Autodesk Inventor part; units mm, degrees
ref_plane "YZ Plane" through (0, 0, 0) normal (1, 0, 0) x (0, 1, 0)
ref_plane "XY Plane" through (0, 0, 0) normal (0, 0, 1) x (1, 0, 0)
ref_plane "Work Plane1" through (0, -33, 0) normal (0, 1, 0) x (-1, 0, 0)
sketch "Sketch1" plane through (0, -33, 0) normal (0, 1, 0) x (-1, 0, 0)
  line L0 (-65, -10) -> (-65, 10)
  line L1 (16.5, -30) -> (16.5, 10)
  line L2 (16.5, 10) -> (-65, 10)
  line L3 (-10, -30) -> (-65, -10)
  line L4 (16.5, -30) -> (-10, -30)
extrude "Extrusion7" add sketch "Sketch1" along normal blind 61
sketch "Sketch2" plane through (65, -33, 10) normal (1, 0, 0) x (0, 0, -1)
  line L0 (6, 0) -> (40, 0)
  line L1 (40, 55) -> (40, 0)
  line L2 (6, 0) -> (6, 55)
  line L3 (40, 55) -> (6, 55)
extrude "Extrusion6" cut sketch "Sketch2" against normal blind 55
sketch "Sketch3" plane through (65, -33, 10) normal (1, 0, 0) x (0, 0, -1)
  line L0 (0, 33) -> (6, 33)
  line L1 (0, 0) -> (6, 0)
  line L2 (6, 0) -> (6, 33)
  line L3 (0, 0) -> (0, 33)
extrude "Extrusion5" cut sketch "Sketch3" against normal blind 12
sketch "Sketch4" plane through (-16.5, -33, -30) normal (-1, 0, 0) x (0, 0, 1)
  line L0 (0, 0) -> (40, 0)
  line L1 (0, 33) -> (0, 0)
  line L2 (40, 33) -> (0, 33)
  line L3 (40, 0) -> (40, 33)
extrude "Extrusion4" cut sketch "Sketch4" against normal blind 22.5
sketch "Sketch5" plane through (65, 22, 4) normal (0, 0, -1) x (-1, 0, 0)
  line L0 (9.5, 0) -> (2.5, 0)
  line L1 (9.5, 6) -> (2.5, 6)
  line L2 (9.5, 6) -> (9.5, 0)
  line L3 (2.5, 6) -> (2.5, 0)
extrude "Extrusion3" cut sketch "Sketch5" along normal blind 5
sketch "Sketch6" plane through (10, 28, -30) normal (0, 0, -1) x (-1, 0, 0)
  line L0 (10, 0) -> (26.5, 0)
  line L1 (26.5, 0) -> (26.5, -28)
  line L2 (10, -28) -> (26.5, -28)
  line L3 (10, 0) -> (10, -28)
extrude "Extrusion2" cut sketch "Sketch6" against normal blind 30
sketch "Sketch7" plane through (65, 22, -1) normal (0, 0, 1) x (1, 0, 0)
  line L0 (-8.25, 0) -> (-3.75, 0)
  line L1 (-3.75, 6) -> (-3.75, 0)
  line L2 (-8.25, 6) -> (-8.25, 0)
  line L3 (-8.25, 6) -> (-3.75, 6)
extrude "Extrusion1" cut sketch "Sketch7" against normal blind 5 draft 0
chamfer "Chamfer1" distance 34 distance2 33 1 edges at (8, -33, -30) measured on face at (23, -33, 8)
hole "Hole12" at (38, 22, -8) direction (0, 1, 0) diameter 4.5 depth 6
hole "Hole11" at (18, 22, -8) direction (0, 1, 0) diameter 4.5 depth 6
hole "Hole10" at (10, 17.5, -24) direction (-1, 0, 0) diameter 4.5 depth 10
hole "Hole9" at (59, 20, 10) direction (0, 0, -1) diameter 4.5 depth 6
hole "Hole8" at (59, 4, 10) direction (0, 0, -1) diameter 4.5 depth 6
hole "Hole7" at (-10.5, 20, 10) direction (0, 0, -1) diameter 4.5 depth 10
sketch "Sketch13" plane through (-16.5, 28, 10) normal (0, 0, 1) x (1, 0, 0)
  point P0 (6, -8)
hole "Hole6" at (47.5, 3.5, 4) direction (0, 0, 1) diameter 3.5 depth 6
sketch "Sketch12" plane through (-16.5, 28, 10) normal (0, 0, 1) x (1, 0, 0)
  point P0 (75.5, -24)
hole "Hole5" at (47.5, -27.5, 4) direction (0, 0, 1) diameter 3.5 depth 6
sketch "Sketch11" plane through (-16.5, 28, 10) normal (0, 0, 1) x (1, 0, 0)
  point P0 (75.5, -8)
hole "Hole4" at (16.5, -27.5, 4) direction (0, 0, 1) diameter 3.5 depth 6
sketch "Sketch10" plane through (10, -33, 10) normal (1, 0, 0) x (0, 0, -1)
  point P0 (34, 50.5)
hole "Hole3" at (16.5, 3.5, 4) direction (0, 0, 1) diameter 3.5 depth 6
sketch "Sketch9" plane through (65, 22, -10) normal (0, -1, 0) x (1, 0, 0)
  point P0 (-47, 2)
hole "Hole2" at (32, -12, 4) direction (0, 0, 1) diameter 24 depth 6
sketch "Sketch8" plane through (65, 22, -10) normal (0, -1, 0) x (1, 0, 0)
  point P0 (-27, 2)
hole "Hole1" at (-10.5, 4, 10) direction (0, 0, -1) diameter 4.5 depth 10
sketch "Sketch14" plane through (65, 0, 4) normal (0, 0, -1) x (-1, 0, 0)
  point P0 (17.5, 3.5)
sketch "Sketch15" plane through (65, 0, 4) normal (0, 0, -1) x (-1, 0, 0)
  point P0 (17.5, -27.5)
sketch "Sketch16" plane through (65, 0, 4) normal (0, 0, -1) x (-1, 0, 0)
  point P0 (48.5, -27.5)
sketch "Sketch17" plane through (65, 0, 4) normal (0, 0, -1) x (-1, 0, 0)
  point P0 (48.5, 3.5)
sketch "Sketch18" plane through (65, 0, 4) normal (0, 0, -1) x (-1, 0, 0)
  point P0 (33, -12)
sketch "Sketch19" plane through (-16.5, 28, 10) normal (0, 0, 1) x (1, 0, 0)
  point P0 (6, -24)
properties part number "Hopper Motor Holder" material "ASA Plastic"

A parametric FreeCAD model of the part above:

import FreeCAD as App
import Part
import Sketcher

V = App.Vector
Q = App.Units.Quantity


def edges_at(feature, points):
    """Names of the edges that pass closest to the given points."""
    edges = feature.Shape.Edges
    near = lambda p: min(range(len(edges)), key=lambda i: edges[i].distToShape(Part.Vertex(*p))[0])
    return sorted({f"Edge{near(p) + 1}" for p in points})

doc = App.newDocument("Part")
body = doc.addObject("PartDesign::Body", "Body")

# Sketch on XZ plane
sketch1 = body.newObject("Sketcher::SketchObject", "Sketch")
sketch1.AttachmentSupport = (doc.getObject("XZ_Plane"), [""])
sketch1.MapMode = "FlatFace"
sketch1.AttachmentOffset = App.Placement(V(0, 0, 33), App.Rotation())
sketch1.addGeometry([
    Part.LineSegment(V(65, 10, 0), V(65, -10, 0)),  # 0
    Part.LineSegment(V(65, -10, 0), V(10, -30, 0)),  # 1
    Part.LineSegment(V(10, -30, 0), V(-16.5, -30, 0)),  # 2
    Part.LineSegment(V(-16.5, -30, 0), V(-16.5, 10, 0)),  # 3
    Part.LineSegment(V(-16.5, 10, 0), V(65, 10, 0)),  # 4
], False)
sketch1.addConstraint([
    Sketcher.Constraint("Coincident", 0, 2, 1, 1),
    Sketcher.Constraint("Coincident", 1, 2, 2, 1),
    Sketcher.Constraint("Coincident", 2, 2, 3, 1),
    Sketcher.Constraint("Coincident", 3, 2, 4, 1),
    Sketcher.Constraint("Coincident", 4, 2, 0, 1),
    Sketcher.Constraint("Vertical", 0),
    Sketcher.Constraint("Horizontal", 2),
    Sketcher.Constraint("Vertical", 3),
    Sketcher.Constraint("Horizontal", 4),
    Sketcher.Constraint("DistanceY", 0, 2, 0, 1, Q("20 mm")),
    Sketcher.Constraint("DistanceY", 3, 1, 3, 2, Q("40 mm")),
    Sketcher.Constraint("DistanceX", 2, 2, 2, 1, Q("26.5 mm")),
    Sketcher.Constraint("DistanceX", 4, 1, 4, 2, Q("81.5 mm")),
    Sketcher.Constraint("DistanceX", -1, 1, 0, 2, Q("65 mm")),
    Sketcher.Constraint("DistanceY", 0, 2, -1, 1, Q("10 mm")),
])
pad1 = body.newObject("PartDesign::Pad", "Pad")
pad1.Profile = sketch1
pad1.Length = 61
pad1.Reversed = True

# Sketch on YZ plane
sketch2 = body.newObject("Sketcher::SketchObject", "Sketch001")
sketch2.AttachmentSupport = (doc.getObject("YZ_Plane"), [""])
sketch2.MapMode = "FlatFace"
sketch2.AttachmentOffset = App.Placement(V(0, 0, 65), App.Rotation())
sketch2.addGeometry([
    Part.LineSegment(V(22, 4, 0), V(-33, 4, 0)),
    Part.LineSegment(V(-33, 4, 0), V(-33, -30, 0)),
    Part.LineSegment(V(-33, -30, 0), V(22, -30, 0)),
    Part.LineSegment(V(22, -30, 0), V(22, 4, 0)),
], False)
sketch2.addConstraint([
    Sketcher.Constraint("Coincident", 0, 2, 1, 1),
    Sketcher.Constraint("Coincident", 1, 2, 2, 1),
    Sketcher.Constraint("Coincident", 2, 2, 3, 1),
    Sketcher.Constraint("Coincident", 3, 2, 0, 1),
    Sketcher.Constraint("Horizontal", 0),
    Sketcher.Constraint("Vertical", 1),
    Sketcher.Constraint("Horizontal", 2),
    Sketcher.Constraint("Vertical", 3),
    Sketcher.Constraint("DistanceX", 0, 2, 0, 1, Q("55 mm")),
    Sketcher.Constraint("DistanceY", 1, 2, 1, 1, Q("34 mm")),
    Sketcher.Constraint("DistanceX", 0, 2, -1, 1, Q("33 mm")),
    Sketcher.Constraint("DistanceY", -1, 1, 0, 2, Q("4 mm")),
])
pocket1 = body.newObject("PartDesign::Pocket", "Pocket")
pocket1.Profile = sketch2
pocket1.Length = 55

# Sketch on YZ plane
sketch3 = body.newObject("Sketcher::SketchObject", "Sketch002")
sketch3.AttachmentSupport = (doc.getObject("YZ_Plane"), [""])
sketch3.MapMode = "FlatFace"
sketch3.AttachmentOffset = App.Placement(V(0, 0, 65), App.Rotation())
sketch3.addGeometry([
    Part.LineSegment(V(0, 4, 0), V(0, 10, 0)),
    Part.LineSegment(V(0, 10, 0), V(-33, 10, 0)),
    Part.LineSegment(V(-33, 10, 0), V(-33, 4, 0)),
    Part.LineSegment(V(-33, 4, 0), V(0, 4, 0)),
], False)
sketch3.addConstraint([
    Sketcher.Constraint("Coincident", 0, 2, 1, 1),
    Sketcher.Constraint("Coincident", 1, 2, 2, 1),
    Sketcher.Constraint("Coincident", 2, 2, 3, 1),
    Sketcher.Constraint("Coincident", 3, 2, 0, 1),
    Sketcher.Constraint("Vertical", 0),
    Sketcher.Constraint("Horizontal", 1),
    Sketcher.Constraint("Vertical", 2),
    Sketcher.Constraint("Horizontal", 3),
    Sketcher.Constraint("PointOnObject", 0, 2, -2),
    Sketcher.Constraint("DistanceX", 1, 2, 1, 1, Q("33 mm")),
    Sketcher.Constraint("DistanceY", 0, 1, 0, 2, Q("6 mm")),
    Sketcher.Constraint("DistanceY", -1, 1, 0, 2, Q("10 mm")),
])
pocket2 = body.newObject("PartDesign::Pocket", "Pocket001")
pocket2.Profile = sketch3
pocket2.Length = 12

# Sketch on YZ plane
sketch4 = body.newObject("Sketcher::SketchObject", "Sketch003")
sketch4.AttachmentSupport = (doc.getObject("YZ_Plane"), [""])
sketch4.MapMode = "FlatFace"
sketch4.AttachmentOffset = App.Placement(V(0, 0, -16.5), App.Rotation())
sketch4.addGeometry([
    Part.LineSegment(V(0, -30, 0), V(-33, -30, 0)),
    Part.LineSegment(V(-33, -30, 0), V(-33, 10, 0)),
    Part.LineSegment(V(-33, 10, 0), V(0, 10, 0)),
    Part.LineSegment(V(0, 10, 0), V(0, -30, 0)),
], False)
sketch4.addConstraint([
    Sketcher.Constraint("Coincident", 0, 2, 1, 1),
    Sketcher.Constraint("Coincident", 1, 2, 2, 1),
    Sketcher.Constraint("Coincident", 2, 2, 3, 1),
    Sketcher.Constraint("Coincident", 3, 2, 0, 1),
    Sketcher.Constraint("Horizontal", 0),
    Sketcher.Constraint("Vertical", 1),
    Sketcher.Constraint("Horizontal", 2),
    Sketcher.Constraint("Vertical", 3),
    Sketcher.Constraint("PointOnObject", 2, 2, -2),
    Sketcher.Constraint("DistanceX", 0, 2, 0, 1, Q("33 mm")),
    Sketcher.Constraint("DistanceY", 1, 1, 1, 2, Q("40 mm")),
    Sketcher.Constraint("DistanceY", 0, 2, -1, 1, Q("30 mm")),
])
pocket3 = body.newObject("PartDesign::Pocket", "Pocket002")
pocket3.Profile = sketch4
pocket3.Length = 22.5
pocket3.Reversed = True

# Sketch on XY plane
sketch5 = body.newObject("Sketcher::SketchObject", "Sketch004")
sketch5.AttachmentSupport = (doc.getObject("XY_Plane"), [""])
sketch5.MapMode = "FlatFace"
sketch5.AttachmentOffset = App.Placement(V(0, 0, 4), App.Rotation())
sketch5.addGeometry([
    Part.LineSegment(V(62.5, 22, 0), V(55.5, 22, 0)),
    Part.LineSegment(V(55.5, 22, 0), V(55.5, 28, 0)),
    Part.LineSegment(V(55.5, 28, 0), V(62.5, 28, 0)),
    Part.LineSegment(V(62.5, 28, 0), V(62.5, 22, 0)),
], False)
sketch5.addConstraint([
    Sketcher.Constraint("Coincident", 0, 2, 1, 1),
    Sketcher.Constraint("Coincident", 1, 2, 2, 1),
    Sketcher.Constraint("Coincident", 2, 2, 3, 1),
    Sketcher.Constraint("Coincident", 3, 2, 0, 1),
    Sketcher.Constraint("Horizontal", 0),
    Sketcher.Constraint("Vertical", 1),
    Sketcher.Constraint("Horizontal", 2),
    Sketcher.Constraint("Vertical", 3),
    Sketcher.Constraint("DistanceX", 0, 2, 0, 1, Q("7 mm")),
    Sketcher.Constraint("DistanceY", 1, 1, 1, 2, Q("6 mm")),
    Sketcher.Constraint("DistanceY", -1, 1, 0, 2, Q("22 mm")),
    Sketcher.Constraint("DistanceX", -1, 1, 0, 2, Q("55.5 mm")),
])
pocket4 = body.newObject("PartDesign::Pocket", "Pocket003")
pocket4.Profile = sketch5
pocket4.Length = 5

# Sketch on XY plane
sketch6 = body.newObject("Sketcher::SketchObject", "Sketch005")
sketch6.AttachmentSupport = (doc.getObject("XY_Plane"), [""])
sketch6.MapMode = "FlatFace"
sketch6.AttachmentOffset = App.Placement(V(0, 0, -30), App.Rotation())
sketch6.addGeometry([
    Part.LineSegment(V(-16.5, 28, 0), V(0, 28, 0)),
    Part.LineSegment(V(0, 28, 0), V(0, 0, 0)),
    Part.LineSegment(V(0, 0, 0), V(-16.5, 0, 0)),
    Part.LineSegment(V(-16.5, 0, 0), V(-16.5, 28, 0)),
], False)
sketch6.addConstraint([
    Sketcher.Constraint("Coincident", 0, 2, 1, 1),
    Sketcher.Constraint("Coincident", 1, 2, 2, 1),
    Sketcher.Constraint("Coincident", 2, 2, 3, 1),
    Sketcher.Constraint("Coincident", 3, 2, 0, 1),
    Sketcher.Constraint("Horizontal", 0),
    Sketcher.Constraint("Vertical", 1),
    Sketcher.Constraint("Horizontal", 2),
    Sketcher.Constraint("Vertical", 3),
    Sketcher.Constraint("Coincident", 1, 2, -1, 1),
    Sketcher.Constraint("DistanceY", 1, 2, 1, 1, Q("28 mm")),
    Sketcher.Constraint("DistanceX", 0, 1, 0, 2, Q("16.5 mm")),
])
pocket5 = body.newObject("PartDesign::Pocket", "Pocket004")
pocket5.Profile = sketch6
pocket5.Length = 30
pocket5.Reversed = True

# Sketch on XY plane
sketch7 = body.newObject("Sketcher::SketchObject", "Sketch006")
sketch7.AttachmentSupport = (doc.getObject("XY_Plane"), [""])
sketch7.MapMode = "FlatFace"
sketch7.AttachmentOffset = App.Placement(V(0, 0, -1), App.Rotation())
sketch7.addGeometry([
    Part.LineSegment(V(56.75, 28, 0), V(56.75, 22, 0)),
    Part.LineSegment(V(56.75, 22, 0), V(61.25, 22, 0)),
    Part.LineSegment(V(61.25, 22, 0), V(61.25, 28, 0)),
    Part.LineSegment(V(61.25, 28, 0), V(56.75, 28, 0)),
], False)
sketch7.addConstraint([
    Sketcher.Constraint("Coincident", 0, 2, 1, 1),
    Sketcher.Constraint("Coincident", 1, 2, 2, 1),
    Sketcher.Constraint("Coincident", 2, 2, 3, 1),
    Sketcher.Constraint("Coincident", 3, 2, 0, 1),
    Sketcher.Constraint("Vertical", 0),
    Sketcher.Constraint("Horizontal", 1),
    Sketcher.Constraint("Vertical", 2),
    Sketcher.Constraint("Horizontal", 3),
    Sketcher.Constraint("DistanceY", 0, 2, 0, 1, Q("6 mm")),
    Sketcher.Constraint("DistanceX", 1, 1, 1, 2, Q("4.5 mm")),
    Sketcher.Constraint("DistanceY", -1, 1, 0, 2, Q("22 mm")),
    Sketcher.Constraint("DistanceX", -1, 1, 0, 2, Q("56.75 mm")),
])
pocket6 = body.newObject("PartDesign::Pocket", "Pocket005")
pocket6.Profile = sketch7
pocket6.Length = 5
doc.recompute()

chamfer = body.newObject("PartDesign::Chamfer", "Chamfer")
chamfer.Base = (pocket6, edges_at(pocket6, [(8, -33, -30)]))
chamfer.ChamferType = "Two distances"
chamfer.Size = 34
chamfer.Size2 = 33

# Sketch on XZ plane
sketch8 = body.newObject("Sketcher::SketchObject", "Sketch007")
sketch8.AttachmentSupport = (doc.getObject("XZ_Plane"), [""])
sketch8.MapMode = "FlatFace"
sketch8.AttachmentOffset = App.Placement(V(0, 0, -22), App.Rotation())
sketch8.addGeometry(Part.Circle(V(38, -8, 0), V(0, 0, 1), 2.25), False)
sketch8.addConstraint([
    Sketcher.Constraint("Diameter", 0, Q("4.5 mm")),
    Sketcher.Constraint("DistanceX", -1, 1, 0, 3, Q("38 mm")),
    Sketcher.Constraint("DistanceY", 0, 3, -1, 1, Q("8 mm")),
])
doc.recompute()
hole = body.newObject("PartDesign::Hole", "Hole")
hole.Profile = sketch8
hole.ThreadType = "None"
hole.Diameter = 4.5
hole.DepthType = "Dimension"
hole.Depth = 6
hole.DrillPoint = "Flat"

# Sketch on XZ plane
sketch9 = body.newObject("Sketcher::SketchObject", "Sketch008")
sketch9.AttachmentSupport = (doc.getObject("XZ_Plane"), [""])
sketch9.MapMode = "FlatFace"
sketch9.AttachmentOffset = App.Placement(V(0, 0, -22), App.Rotation())
sketch9.addGeometry(Part.Circle(V(18, -8, 0), V(0, 0, 1), 2.25), False)
sketch9.addConstraint([
    Sketcher.Constraint("Diameter", 0, Q("4.5 mm")),
    Sketcher.Constraint("DistanceX", -1, 1, 0, 3, Q("18 mm")),
    Sketcher.Constraint("DistanceY", 0, 3, -1, 1, Q("8 mm")),
])
doc.recompute()
hole2 = body.newObject("PartDesign::Hole", "Hole001")
hole2.Profile = sketch9
hole2.ThreadType = "None"
hole2.Diameter = 4.5
hole2.DepthType = "Dimension"
hole2.Depth = 6
hole2.DrillPoint = "Flat"

# Sketch on YZ plane
sketch10 = body.newObject("Sketcher::SketchObject", "Sketch009")
sketch10.AttachmentSupport = (doc.getObject("YZ_Plane"), [""])
sketch10.MapMode = "FlatFace"
sketch10.AttachmentOffset = App.Placement(V(0, 0, 10), App.Rotation())
sketch10.addGeometry(Part.Circle(V(17.5, -24, 0), V(0, 0, 1), 2.25), False)
sketch10.addConstraint([
    Sketcher.Constraint("Diameter", 0, Q("4.5 mm")),
    Sketcher.Constraint("DistanceY", 0, 3, -1, 1, Q("24 mm")),
    Sketcher.Constraint("DistanceX", -1, 1, 0, 3, Q("17.5 mm")),
])
doc.recompute()
hole3 = body.newObject("PartDesign::Hole", "Hole002")
hole3.Profile = sketch10
hole3.ThreadType = "None"
hole3.Diameter = 4.5
hole3.DepthType = "Dimension"
hole3.Depth = 10
hole3.DrillPoint = "Flat"

# Sketch on XY plane
sketch11 = body.newObject("Sketcher::SketchObject", "Sketch010")
sketch11.AttachmentSupport = (doc.getObject("XY_Plane"), [""])
sketch11.MapMode = "FlatFace"
sketch11.AttachmentOffset = App.Placement(V(0, 0, 10), App.Rotation())
sketch11.addGeometry(Part.Circle(V(59, 20, 0), V(0, 0, 1), 2.25), False)
sketch11.addConstraint([
    Sketcher.Constraint("Diameter", 0, Q("4.5 mm")),
    Sketcher.Constraint("DistanceX", -1, 1, 0, 3, Q("59 mm")),
    Sketcher.Constraint("DistanceY", -1, 1, 0, 3, Q("20 mm")),
])
doc.recompute()
hole4 = body.newObject("PartDesign::Hole", "Hole003")
hole4.Profile = sketch11
hole4.ThreadType = "None"
hole4.Diameter = 4.5
hole4.DepthType = "Dimension"
hole4.Depth = 6
hole4.DrillPoint = "Flat"

# Sketch on XY plane
sketch12 = body.newObject("Sketcher::SketchObject", "Sketch011")
sketch12.AttachmentSupport = (doc.getObject("XY_Plane"), [""])
sketch12.MapMode = "FlatFace"
sketch12.AttachmentOffset = App.Placement(V(0, 0, 10), App.Rotation())
sketch12.addGeometry(Part.Circle(V(59, 4, 0), V(0, 0, 1), 2.25), False)
sketch12.addConstraint([
    Sketcher.Constraint("Diameter", 0, Q("4.5 mm")),
    Sketcher.Constraint("DistanceX", -1, 1, 0, 3, Q("59 mm")),
    Sketcher.Constraint("DistanceY", -1, 1, 0, 3, Q("4 mm")),
])
doc.recompute()
hole5 = body.newObject("PartDesign::Hole", "Hole004")
hole5.Profile = sketch12
hole5.ThreadType = "None"
hole5.Diameter = 4.5
hole5.DepthType = "Dimension"
hole5.Depth = 6
hole5.DrillPoint = "Flat"

# Sketch on XY plane
sketch13 = body.newObject("Sketcher::SketchObject", "Sketch012")
sketch13.AttachmentSupport = (doc.getObject("XY_Plane"), [""])
sketch13.MapMode = "FlatFace"
sketch13.AttachmentOffset = App.Placement(V(0, 0, 10), App.Rotation())
sketch13.addGeometry(Part.Circle(V(-10.5, 20, 0), V(0, 0, 1), 2.25), False)
sketch13.addConstraint([
    Sketcher.Constraint("Diameter", 0, Q("4.5 mm")),
    Sketcher.Constraint("DistanceY", -1, 1, 0, 3, Q("20 mm")),
    Sketcher.Constraint("DistanceX", 0, 3, -1, 1, Q("10.5 mm")),
])
doc.recompute()
hole6 = body.newObject("PartDesign::Hole", "Hole005")
hole6.Profile = sketch13
hole6.ThreadType = "None"
hole6.Diameter = 4.5
hole6.DepthType = "Dimension"
hole6.Depth = 10
hole6.DrillPoint = "Flat"

# Sketch on XY plane
sketch14 = body.newObject("Sketcher::SketchObject", "Sketch013")
sketch14.AttachmentSupport = (doc.getObject("XY_Plane"), [""])
sketch14.MapMode = "FlatFace"
sketch14.AttachmentOffset = App.Placement(V(0, 0, 4), App.Rotation())
sketch14.addGeometry(Part.Circle(V(47.5, 3.5, 0), V(0, 0, 1), 1.75), False)
sketch14.addConstraint([
    Sketcher.Constraint("Diameter", 0, Q("3.5 mm")),
    Sketcher.Constraint("DistanceX", -1, 1, 0, 3, Q("47.5 mm")),
    Sketcher.Constraint("DistanceY", -1, 1, 0, 3, Q("3.5 mm")),
])
doc.recompute()
hole7 = body.newObject("PartDesign::Hole", "Hole006")
hole7.Profile = sketch14
hole7.ThreadType = "None"
hole7.Diameter = 3.5
hole7.DepthType = "Dimension"
hole7.Depth = 6
hole7.DrillPoint = "Flat"
hole7.Reversed = True

# Sketch on XY plane
sketch15 = body.newObject("Sketcher::SketchObject", "Sketch014")
sketch15.AttachmentSupport = (doc.getObject("XY_Plane"), [""])
sketch15.MapMode = "FlatFace"
sketch15.AttachmentOffset = App.Placement(V(0, 0, 4), App.Rotation())
sketch15.addGeometry(Part.Circle(V(47.5, -27.5, 0), V(0, 0, 1), 1.75), False)
sketch15.addConstraint([
    Sketcher.Constraint("Diameter", 0, Q("3.5 mm")),
    Sketcher.Constraint("DistanceX", -1, 1, 0, 3, Q("47.5 mm")),
    Sketcher.Constraint("DistanceY", 0, 3, -1, 1, Q("27.5 mm")),
])
doc.recompute()
hole8 = body.newObject("PartDesign::Hole", "Hole007")
hole8.Profile = sketch15
hole8.ThreadType = "None"
hole8.Diameter = 3.5
hole8.DepthType = "Dimension"
hole8.Depth = 6
hole8.DrillPoint = "Flat"
hole8.Reversed = True

# Sketch on XY plane
sketch16 = body.newObject("Sketcher::SketchObject", "Sketch015")
sketch16.AttachmentSupport = (doc.getObject("XY_Plane"), [""])
sketch16.MapMode = "FlatFace"
sketch16.AttachmentOffset = App.Placement(V(0, 0, 4), App.Rotation())
sketch16.addGeometry(Part.Circle(V(16.5, -27.5, 0), V(0, 0, 1), 1.75), False)
sketch16.addConstraint([
    Sketcher.Constraint("Diameter", 0, Q("3.5 mm")),
    Sketcher.Constraint("DistanceX", -1, 1, 0, 3, Q("16.5 mm")),
    Sketcher.Constraint("DistanceY", 0, 3, -1, 1, Q("27.5 mm")),
])
doc.recompute()
hole9 = body.newObject("PartDesign::Hole", "Hole008")
hole9.Profile = sketch16
hole9.ThreadType = "None"
hole9.Diameter = 3.5
hole9.DepthType = "Dimension"
hole9.Depth = 6
hole9.DrillPoint = "Flat"
hole9.Reversed = True

# Sketch on XY plane
sketch17 = body.newObject("Sketcher::SketchObject", "Sketch016")
sketch17.AttachmentSupport = (doc.getObject("XY_Plane"), [""])
sketch17.MapMode = "FlatFace"
sketch17.AttachmentOffset = App.Placement(V(0, 0, 4), App.Rotation())
sketch17.addGeometry(Part.Circle(V(16.5, 3.5, 0), V(0, 0, 1), 1.75), False)
sketch17.addConstraint([
    Sketcher.Constraint("Diameter", 0, Q("3.5 mm")),
    Sketcher.Constraint("DistanceX", -1, 1, 0, 3, Q("16.5 mm")),
    Sketcher.Constraint("DistanceY", -1, 1, 0, 3, Q("3.5 mm")),
])
doc.recompute()
hole10 = body.newObject("PartDesign::Hole", "Hole009")
hole10.Profile = sketch17
hole10.ThreadType = "None"
hole10.Diameter = 3.5
hole10.DepthType = "Dimension"
hole10.Depth = 6
hole10.DrillPoint = "Flat"
hole10.Reversed = True

# Sketch on XY plane
sketch18 = body.newObject("Sketcher::SketchObject", "Sketch017")
sketch18.AttachmentSupport = (doc.getObject("XY_Plane"), [""])
sketch18.MapMode = "FlatFace"
sketch18.AttachmentOffset = App.Placement(V(0, 0, 4), App.Rotation())
sketch18.addGeometry(Part.Circle(V(32, -12, 0), V(0, 0, 1), 12), False)
sketch18.addConstraint([
    Sketcher.Constraint("Diameter", 0, Q("24 mm")),
    Sketcher.Constraint("DistanceX", -1, 1, 0, 3, Q("32 mm")),
    Sketcher.Constraint("DistanceY", 0, 3, -1, 1, Q("12 mm")),
])
doc.recompute()
hole11 = body.newObject("PartDesign::Hole", "Hole010")
hole11.Profile = sketch18
hole11.ThreadType = "None"
hole11.Diameter = 24
hole11.DepthType = "Dimension"
hole11.Depth = 6
hole11.DrillPoint = "Flat"
hole11.Reversed = True

# Sketch on XY plane
sketch19 = body.newObject("Sketcher::SketchObject", "Sketch018")
sketch19.AttachmentSupport = (doc.getObject("XY_Plane"), [""])
sketch19.MapMode = "FlatFace"
sketch19.AttachmentOffset = App.Placement(V(0, 0, 10), App.Rotation())
sketch19.addGeometry(Part.Circle(V(-10.5, 4, 0), V(0, 0, 1), 2.25), False)
sketch19.addConstraint([
    Sketcher.Constraint("Diameter", 0, Q("4.5 mm")),
    Sketcher.Constraint("DistanceY", -1, 1, 0, 3, Q("4 mm")),
    Sketcher.Constraint("DistanceX", 0, 3, -1, 1, Q("10.5 mm")),
])
doc.recompute()
hole12 = body.newObject("PartDesign::Hole", "Hole011")
hole12.Profile = sketch19
hole12.ThreadType = "None"
hole12.Diameter = 4.5
hole12.DepthType = "Dimension"
hole12.Depth = 10
hole12.DrillPoint = "Flat"

doc.recompute()
